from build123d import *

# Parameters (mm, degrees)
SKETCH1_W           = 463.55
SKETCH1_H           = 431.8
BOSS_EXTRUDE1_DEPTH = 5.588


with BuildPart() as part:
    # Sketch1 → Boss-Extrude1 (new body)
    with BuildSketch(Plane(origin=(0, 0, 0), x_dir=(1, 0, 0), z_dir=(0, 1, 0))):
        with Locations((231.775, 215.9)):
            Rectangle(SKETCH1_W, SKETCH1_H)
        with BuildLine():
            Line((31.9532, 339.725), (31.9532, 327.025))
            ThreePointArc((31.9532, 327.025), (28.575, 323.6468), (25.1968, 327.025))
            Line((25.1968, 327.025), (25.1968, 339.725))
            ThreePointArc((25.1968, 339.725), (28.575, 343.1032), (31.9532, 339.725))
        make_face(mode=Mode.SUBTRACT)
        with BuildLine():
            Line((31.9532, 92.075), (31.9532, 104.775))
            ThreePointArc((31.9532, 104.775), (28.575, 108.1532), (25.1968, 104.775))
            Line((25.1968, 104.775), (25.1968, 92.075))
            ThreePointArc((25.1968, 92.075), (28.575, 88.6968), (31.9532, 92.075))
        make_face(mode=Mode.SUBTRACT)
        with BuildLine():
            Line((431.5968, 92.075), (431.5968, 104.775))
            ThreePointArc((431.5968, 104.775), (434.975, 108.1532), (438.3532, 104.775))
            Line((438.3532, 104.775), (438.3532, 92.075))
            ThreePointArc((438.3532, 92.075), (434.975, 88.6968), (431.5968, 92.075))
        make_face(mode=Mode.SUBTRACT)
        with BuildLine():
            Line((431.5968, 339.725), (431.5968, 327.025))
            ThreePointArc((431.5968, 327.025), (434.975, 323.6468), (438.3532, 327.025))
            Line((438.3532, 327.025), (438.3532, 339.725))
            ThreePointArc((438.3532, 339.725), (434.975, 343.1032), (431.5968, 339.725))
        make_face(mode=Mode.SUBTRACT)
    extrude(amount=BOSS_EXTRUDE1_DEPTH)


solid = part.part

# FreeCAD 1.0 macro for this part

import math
import FreeCAD as App
import Part
import Sketcher
from FreeCAD import Vector
Q = App.Units.Quantity

doc = App.newDocument("Part")
params = doc.addObject("Spreadsheet::Sheet", "Params")
for row, (alias, value) in enumerate([
    ("sketch1_height", "17 in"),
    ("sketch1_height2", "0.5 in"),
    ("sketch1_radius", "0.133 in"),
    ("sketch1_width", "18.25 in"),
    ("pad1_length", "0.22 in"),
], start=1):
    params.set(f"A{row}", alias)
    params.set(f"B{row}", "=" + value)
    params.setAlias(f"B{row}", alias)

body = doc.addObject("PartDesign::Body", "Body")

sketch1 = body.newObject("Sketcher::SketchObject", "Sketch")
sketch1.AttachmentSupport = (doc.getObject("XZ_Plane"), [""])
sketch1.MapMode = "FlatFace"
sketch1.addGeometry([
    Part.LineSegment(Vector(0, -431.8, 0), Vector(0, 0, 0)),
    Part.LineSegment(Vector(0, 0, 0), Vector(463.6, 0, 0)),
    Part.LineSegment(Vector(463.6, 0, 0), Vector(463.6, -431.8, 0)),
    Part.LineSegment(Vector(463.6, -431.8, 0), Vector(0, -431.8, 0)),
    Part.LineSegment(Vector(32, -104.8, 0), Vector(32, -92.1, 0)),
    Part.ArcOfCircle(Part.Circle(Vector(28.6, -92.1, 0), Vector(0, 0, 1), 3.4), math.radians(0), math.radians(180)),
    Part.LineSegment(Vector(25.2, -92.1, 0), Vector(25.2, -104.8, 0)),
    Part.ArcOfCircle(Part.Circle(Vector(28.6, -104.8, 0), Vector(0, 0, 1), 3.4), math.radians(180), math.radians(360)),
    Part.ArcOfCircle(Part.Circle(Vector(435, -92.1, 0), Vector(0, 0, 1), 3.4), math.radians(0), math.radians(180)),
    Part.LineSegment(Vector(431.6, -92.1, 0), Vector(431.6, -104.8, 0)),
    Part.ArcOfCircle(Part.Circle(Vector(435, -104.8, 0), Vector(0, 0, 1), 3.4), math.radians(180), math.radians(360)),
    Part.LineSegment(Vector(438.4, -104.8, 0), Vector(438.4, -92.1, 0)),
    Part.ArcOfCircle(Part.Circle(Vector(28.6, -339.7, 0), Vector(0, 0, 1), 3.4), math.radians(180), math.radians(360)),
    Part.LineSegment(Vector(32, -339.7, 0), Vector(32, -327, 0)),
    Part.ArcOfCircle(Part.Circle(Vector(28.6, -327, 0), Vector(0, 0, 1), 3.4), math.radians(0), math.radians(180)),
    Part.LineSegment(Vector(25.2, -327, 0), Vector(25.2, -339.7, 0)),
    Part.LineSegment(Vector(431.6, -327, 0), Vector(431.6, -339.7, 0)),
    Part.ArcOfCircle(Part.Circle(Vector(435, -339.7, 0), Vector(0, 0, 1), 3.4), math.radians(180), math.radians(360)),
    Part.LineSegment(Vector(438.4, -339.7, 0), Vector(438.4, -327, 0)),
    Part.ArcOfCircle(Part.Circle(Vector(435, -327, 0), Vector(0, 0, 1), 3.4), math.radians(0), math.radians(180)),
], False)
sketch1.addConstraint([
    Sketcher.Constraint("Coincident", 0, 2, 1, 1),
    Sketcher.Constraint("Coincident", 1, 2, 2, 1),
    Sketcher.Constraint("Coincident", 2, 2, 3, 1),
    Sketcher.Constraint("Coincident", 3, 2, 0, 1),
    Sketcher.Constraint("Tangent", 4, 2, 5, 1),
    Sketcher.Constraint("Tangent", 5, 2, 6, 1),
    Sketcher.Constraint("Tangent", 6, 2, 7, 1),
    Sketcher.Constraint("Tangent", 7, 2, 4, 1),
    Sketcher.Constraint("Tangent", 8, 2, 9, 1),
    Sketcher.Constraint("Tangent", 9, 2, 10, 1),
    Sketcher.Constraint("Tangent", 10, 2, 11, 1),
    Sketcher.Constraint("Tangent", 11, 2, 8, 1),
    Sketcher.Constraint("Tangent", 12, 2, 13, 1),
    Sketcher.Constraint("Tangent", 13, 2, 14, 1),
    Sketcher.Constraint("Tangent", 14, 2, 15, 1),
    Sketcher.Constraint("Tangent", 15, 2, 12, 1),
    Sketcher.Constraint("Tangent", 16, 2, 17, 1),
    Sketcher.Constraint("Tangent", 17, 2, 18, 1),
    Sketcher.Constraint("Tangent", 18, 2, 19, 1),
    Sketcher.Constraint("Tangent", 19, 2, 16, 1),
    Sketcher.Constraint("Vertical", 0),
    Sketcher.Constraint("Horizontal", 1),
    Sketcher.Constraint("Vertical", 2),
    Sketcher.Constraint("Horizontal", 3),
    Sketcher.Constraint("Vertical", 4),
    Sketcher.Constraint("Vertical", 6),
    Sketcher.Constraint("Vertical", 9),
    Sketcher.Constraint("Vertical", 11),
    Sketcher.Constraint("Vertical", 13),
    Sketcher.Constraint("Vertical", 15),
    Sketcher.Constraint("Vertical", 16),
    Sketcher.Constraint("Vertical", 18),
    Sketcher.Constraint("Coincident", 0, 2, -1, 1),
    Sketcher.Constraint("Equal", 7, 8),
    Sketcher.Constraint("Equal", 10, 12),
    Sketcher.Constraint("Equal", 14, 17),
    Sketcher.Constraint("Horizontal", 5, 3, 8, 3),
    Sketcher.Constraint("Horizontal", 7, 3, 10, 3),
    Sketcher.Constraint("Horizontal", 12, 3, 17, 3),
    Sketcher.Constraint("Horizontal", 14, 3, 19, 3),
    Sketcher.Constraint("Vertical", 7, 3, 12, 3),
    Sketcher.Constraint("Vertical", 10, 3, 17, 3),
    Sketcher.Constraint("Equal", 11, 13),
    Sketcher.Constraint("DistanceY", 0, 1, 0, 2, Q("17 in")),
    Sketcher.Constraint("DistanceY", 4, 1, 4, 2, Q("0.5 in")),
    Sketcher.Constraint("Radius", 5, Q("0.133 in")),
    Sketcher.Constraint("DistanceX", 5, 3, 8, 3, Q("16 in")),
    Sketcher.Constraint("DistanceX", 1, 1, 1, 2, Q("18.25 in")),
    Sketcher.Constraint("DistanceY", 12, 3, 7, 3, Q("9.25 in")),
    Sketcher.Constraint("DistanceX", -1, 1, 5, 3, Q("1.125 in")),
    Sketcher.Constraint("DistanceY", 5, 3, -1, 1, Q("3.625 in")),
])
sketch1.setExpression("Constraints[43]", "Params.sketch1_height")
sketch1.setExpression("Constraints[44]", "Params.sketch1_height2")
sketch1.setExpression("Constraints[45]", "Params.sketch1_radius")
sketch1.setExpression("Constraints[47]", "Params.sketch1_width")
pad1 = body.newObject("PartDesign::Pad", "Pad")
pad1.Profile = sketch1
pad1.setExpression("Length", "Params.pad1_length")
pad1.Reversed = True

doc.recompute()
